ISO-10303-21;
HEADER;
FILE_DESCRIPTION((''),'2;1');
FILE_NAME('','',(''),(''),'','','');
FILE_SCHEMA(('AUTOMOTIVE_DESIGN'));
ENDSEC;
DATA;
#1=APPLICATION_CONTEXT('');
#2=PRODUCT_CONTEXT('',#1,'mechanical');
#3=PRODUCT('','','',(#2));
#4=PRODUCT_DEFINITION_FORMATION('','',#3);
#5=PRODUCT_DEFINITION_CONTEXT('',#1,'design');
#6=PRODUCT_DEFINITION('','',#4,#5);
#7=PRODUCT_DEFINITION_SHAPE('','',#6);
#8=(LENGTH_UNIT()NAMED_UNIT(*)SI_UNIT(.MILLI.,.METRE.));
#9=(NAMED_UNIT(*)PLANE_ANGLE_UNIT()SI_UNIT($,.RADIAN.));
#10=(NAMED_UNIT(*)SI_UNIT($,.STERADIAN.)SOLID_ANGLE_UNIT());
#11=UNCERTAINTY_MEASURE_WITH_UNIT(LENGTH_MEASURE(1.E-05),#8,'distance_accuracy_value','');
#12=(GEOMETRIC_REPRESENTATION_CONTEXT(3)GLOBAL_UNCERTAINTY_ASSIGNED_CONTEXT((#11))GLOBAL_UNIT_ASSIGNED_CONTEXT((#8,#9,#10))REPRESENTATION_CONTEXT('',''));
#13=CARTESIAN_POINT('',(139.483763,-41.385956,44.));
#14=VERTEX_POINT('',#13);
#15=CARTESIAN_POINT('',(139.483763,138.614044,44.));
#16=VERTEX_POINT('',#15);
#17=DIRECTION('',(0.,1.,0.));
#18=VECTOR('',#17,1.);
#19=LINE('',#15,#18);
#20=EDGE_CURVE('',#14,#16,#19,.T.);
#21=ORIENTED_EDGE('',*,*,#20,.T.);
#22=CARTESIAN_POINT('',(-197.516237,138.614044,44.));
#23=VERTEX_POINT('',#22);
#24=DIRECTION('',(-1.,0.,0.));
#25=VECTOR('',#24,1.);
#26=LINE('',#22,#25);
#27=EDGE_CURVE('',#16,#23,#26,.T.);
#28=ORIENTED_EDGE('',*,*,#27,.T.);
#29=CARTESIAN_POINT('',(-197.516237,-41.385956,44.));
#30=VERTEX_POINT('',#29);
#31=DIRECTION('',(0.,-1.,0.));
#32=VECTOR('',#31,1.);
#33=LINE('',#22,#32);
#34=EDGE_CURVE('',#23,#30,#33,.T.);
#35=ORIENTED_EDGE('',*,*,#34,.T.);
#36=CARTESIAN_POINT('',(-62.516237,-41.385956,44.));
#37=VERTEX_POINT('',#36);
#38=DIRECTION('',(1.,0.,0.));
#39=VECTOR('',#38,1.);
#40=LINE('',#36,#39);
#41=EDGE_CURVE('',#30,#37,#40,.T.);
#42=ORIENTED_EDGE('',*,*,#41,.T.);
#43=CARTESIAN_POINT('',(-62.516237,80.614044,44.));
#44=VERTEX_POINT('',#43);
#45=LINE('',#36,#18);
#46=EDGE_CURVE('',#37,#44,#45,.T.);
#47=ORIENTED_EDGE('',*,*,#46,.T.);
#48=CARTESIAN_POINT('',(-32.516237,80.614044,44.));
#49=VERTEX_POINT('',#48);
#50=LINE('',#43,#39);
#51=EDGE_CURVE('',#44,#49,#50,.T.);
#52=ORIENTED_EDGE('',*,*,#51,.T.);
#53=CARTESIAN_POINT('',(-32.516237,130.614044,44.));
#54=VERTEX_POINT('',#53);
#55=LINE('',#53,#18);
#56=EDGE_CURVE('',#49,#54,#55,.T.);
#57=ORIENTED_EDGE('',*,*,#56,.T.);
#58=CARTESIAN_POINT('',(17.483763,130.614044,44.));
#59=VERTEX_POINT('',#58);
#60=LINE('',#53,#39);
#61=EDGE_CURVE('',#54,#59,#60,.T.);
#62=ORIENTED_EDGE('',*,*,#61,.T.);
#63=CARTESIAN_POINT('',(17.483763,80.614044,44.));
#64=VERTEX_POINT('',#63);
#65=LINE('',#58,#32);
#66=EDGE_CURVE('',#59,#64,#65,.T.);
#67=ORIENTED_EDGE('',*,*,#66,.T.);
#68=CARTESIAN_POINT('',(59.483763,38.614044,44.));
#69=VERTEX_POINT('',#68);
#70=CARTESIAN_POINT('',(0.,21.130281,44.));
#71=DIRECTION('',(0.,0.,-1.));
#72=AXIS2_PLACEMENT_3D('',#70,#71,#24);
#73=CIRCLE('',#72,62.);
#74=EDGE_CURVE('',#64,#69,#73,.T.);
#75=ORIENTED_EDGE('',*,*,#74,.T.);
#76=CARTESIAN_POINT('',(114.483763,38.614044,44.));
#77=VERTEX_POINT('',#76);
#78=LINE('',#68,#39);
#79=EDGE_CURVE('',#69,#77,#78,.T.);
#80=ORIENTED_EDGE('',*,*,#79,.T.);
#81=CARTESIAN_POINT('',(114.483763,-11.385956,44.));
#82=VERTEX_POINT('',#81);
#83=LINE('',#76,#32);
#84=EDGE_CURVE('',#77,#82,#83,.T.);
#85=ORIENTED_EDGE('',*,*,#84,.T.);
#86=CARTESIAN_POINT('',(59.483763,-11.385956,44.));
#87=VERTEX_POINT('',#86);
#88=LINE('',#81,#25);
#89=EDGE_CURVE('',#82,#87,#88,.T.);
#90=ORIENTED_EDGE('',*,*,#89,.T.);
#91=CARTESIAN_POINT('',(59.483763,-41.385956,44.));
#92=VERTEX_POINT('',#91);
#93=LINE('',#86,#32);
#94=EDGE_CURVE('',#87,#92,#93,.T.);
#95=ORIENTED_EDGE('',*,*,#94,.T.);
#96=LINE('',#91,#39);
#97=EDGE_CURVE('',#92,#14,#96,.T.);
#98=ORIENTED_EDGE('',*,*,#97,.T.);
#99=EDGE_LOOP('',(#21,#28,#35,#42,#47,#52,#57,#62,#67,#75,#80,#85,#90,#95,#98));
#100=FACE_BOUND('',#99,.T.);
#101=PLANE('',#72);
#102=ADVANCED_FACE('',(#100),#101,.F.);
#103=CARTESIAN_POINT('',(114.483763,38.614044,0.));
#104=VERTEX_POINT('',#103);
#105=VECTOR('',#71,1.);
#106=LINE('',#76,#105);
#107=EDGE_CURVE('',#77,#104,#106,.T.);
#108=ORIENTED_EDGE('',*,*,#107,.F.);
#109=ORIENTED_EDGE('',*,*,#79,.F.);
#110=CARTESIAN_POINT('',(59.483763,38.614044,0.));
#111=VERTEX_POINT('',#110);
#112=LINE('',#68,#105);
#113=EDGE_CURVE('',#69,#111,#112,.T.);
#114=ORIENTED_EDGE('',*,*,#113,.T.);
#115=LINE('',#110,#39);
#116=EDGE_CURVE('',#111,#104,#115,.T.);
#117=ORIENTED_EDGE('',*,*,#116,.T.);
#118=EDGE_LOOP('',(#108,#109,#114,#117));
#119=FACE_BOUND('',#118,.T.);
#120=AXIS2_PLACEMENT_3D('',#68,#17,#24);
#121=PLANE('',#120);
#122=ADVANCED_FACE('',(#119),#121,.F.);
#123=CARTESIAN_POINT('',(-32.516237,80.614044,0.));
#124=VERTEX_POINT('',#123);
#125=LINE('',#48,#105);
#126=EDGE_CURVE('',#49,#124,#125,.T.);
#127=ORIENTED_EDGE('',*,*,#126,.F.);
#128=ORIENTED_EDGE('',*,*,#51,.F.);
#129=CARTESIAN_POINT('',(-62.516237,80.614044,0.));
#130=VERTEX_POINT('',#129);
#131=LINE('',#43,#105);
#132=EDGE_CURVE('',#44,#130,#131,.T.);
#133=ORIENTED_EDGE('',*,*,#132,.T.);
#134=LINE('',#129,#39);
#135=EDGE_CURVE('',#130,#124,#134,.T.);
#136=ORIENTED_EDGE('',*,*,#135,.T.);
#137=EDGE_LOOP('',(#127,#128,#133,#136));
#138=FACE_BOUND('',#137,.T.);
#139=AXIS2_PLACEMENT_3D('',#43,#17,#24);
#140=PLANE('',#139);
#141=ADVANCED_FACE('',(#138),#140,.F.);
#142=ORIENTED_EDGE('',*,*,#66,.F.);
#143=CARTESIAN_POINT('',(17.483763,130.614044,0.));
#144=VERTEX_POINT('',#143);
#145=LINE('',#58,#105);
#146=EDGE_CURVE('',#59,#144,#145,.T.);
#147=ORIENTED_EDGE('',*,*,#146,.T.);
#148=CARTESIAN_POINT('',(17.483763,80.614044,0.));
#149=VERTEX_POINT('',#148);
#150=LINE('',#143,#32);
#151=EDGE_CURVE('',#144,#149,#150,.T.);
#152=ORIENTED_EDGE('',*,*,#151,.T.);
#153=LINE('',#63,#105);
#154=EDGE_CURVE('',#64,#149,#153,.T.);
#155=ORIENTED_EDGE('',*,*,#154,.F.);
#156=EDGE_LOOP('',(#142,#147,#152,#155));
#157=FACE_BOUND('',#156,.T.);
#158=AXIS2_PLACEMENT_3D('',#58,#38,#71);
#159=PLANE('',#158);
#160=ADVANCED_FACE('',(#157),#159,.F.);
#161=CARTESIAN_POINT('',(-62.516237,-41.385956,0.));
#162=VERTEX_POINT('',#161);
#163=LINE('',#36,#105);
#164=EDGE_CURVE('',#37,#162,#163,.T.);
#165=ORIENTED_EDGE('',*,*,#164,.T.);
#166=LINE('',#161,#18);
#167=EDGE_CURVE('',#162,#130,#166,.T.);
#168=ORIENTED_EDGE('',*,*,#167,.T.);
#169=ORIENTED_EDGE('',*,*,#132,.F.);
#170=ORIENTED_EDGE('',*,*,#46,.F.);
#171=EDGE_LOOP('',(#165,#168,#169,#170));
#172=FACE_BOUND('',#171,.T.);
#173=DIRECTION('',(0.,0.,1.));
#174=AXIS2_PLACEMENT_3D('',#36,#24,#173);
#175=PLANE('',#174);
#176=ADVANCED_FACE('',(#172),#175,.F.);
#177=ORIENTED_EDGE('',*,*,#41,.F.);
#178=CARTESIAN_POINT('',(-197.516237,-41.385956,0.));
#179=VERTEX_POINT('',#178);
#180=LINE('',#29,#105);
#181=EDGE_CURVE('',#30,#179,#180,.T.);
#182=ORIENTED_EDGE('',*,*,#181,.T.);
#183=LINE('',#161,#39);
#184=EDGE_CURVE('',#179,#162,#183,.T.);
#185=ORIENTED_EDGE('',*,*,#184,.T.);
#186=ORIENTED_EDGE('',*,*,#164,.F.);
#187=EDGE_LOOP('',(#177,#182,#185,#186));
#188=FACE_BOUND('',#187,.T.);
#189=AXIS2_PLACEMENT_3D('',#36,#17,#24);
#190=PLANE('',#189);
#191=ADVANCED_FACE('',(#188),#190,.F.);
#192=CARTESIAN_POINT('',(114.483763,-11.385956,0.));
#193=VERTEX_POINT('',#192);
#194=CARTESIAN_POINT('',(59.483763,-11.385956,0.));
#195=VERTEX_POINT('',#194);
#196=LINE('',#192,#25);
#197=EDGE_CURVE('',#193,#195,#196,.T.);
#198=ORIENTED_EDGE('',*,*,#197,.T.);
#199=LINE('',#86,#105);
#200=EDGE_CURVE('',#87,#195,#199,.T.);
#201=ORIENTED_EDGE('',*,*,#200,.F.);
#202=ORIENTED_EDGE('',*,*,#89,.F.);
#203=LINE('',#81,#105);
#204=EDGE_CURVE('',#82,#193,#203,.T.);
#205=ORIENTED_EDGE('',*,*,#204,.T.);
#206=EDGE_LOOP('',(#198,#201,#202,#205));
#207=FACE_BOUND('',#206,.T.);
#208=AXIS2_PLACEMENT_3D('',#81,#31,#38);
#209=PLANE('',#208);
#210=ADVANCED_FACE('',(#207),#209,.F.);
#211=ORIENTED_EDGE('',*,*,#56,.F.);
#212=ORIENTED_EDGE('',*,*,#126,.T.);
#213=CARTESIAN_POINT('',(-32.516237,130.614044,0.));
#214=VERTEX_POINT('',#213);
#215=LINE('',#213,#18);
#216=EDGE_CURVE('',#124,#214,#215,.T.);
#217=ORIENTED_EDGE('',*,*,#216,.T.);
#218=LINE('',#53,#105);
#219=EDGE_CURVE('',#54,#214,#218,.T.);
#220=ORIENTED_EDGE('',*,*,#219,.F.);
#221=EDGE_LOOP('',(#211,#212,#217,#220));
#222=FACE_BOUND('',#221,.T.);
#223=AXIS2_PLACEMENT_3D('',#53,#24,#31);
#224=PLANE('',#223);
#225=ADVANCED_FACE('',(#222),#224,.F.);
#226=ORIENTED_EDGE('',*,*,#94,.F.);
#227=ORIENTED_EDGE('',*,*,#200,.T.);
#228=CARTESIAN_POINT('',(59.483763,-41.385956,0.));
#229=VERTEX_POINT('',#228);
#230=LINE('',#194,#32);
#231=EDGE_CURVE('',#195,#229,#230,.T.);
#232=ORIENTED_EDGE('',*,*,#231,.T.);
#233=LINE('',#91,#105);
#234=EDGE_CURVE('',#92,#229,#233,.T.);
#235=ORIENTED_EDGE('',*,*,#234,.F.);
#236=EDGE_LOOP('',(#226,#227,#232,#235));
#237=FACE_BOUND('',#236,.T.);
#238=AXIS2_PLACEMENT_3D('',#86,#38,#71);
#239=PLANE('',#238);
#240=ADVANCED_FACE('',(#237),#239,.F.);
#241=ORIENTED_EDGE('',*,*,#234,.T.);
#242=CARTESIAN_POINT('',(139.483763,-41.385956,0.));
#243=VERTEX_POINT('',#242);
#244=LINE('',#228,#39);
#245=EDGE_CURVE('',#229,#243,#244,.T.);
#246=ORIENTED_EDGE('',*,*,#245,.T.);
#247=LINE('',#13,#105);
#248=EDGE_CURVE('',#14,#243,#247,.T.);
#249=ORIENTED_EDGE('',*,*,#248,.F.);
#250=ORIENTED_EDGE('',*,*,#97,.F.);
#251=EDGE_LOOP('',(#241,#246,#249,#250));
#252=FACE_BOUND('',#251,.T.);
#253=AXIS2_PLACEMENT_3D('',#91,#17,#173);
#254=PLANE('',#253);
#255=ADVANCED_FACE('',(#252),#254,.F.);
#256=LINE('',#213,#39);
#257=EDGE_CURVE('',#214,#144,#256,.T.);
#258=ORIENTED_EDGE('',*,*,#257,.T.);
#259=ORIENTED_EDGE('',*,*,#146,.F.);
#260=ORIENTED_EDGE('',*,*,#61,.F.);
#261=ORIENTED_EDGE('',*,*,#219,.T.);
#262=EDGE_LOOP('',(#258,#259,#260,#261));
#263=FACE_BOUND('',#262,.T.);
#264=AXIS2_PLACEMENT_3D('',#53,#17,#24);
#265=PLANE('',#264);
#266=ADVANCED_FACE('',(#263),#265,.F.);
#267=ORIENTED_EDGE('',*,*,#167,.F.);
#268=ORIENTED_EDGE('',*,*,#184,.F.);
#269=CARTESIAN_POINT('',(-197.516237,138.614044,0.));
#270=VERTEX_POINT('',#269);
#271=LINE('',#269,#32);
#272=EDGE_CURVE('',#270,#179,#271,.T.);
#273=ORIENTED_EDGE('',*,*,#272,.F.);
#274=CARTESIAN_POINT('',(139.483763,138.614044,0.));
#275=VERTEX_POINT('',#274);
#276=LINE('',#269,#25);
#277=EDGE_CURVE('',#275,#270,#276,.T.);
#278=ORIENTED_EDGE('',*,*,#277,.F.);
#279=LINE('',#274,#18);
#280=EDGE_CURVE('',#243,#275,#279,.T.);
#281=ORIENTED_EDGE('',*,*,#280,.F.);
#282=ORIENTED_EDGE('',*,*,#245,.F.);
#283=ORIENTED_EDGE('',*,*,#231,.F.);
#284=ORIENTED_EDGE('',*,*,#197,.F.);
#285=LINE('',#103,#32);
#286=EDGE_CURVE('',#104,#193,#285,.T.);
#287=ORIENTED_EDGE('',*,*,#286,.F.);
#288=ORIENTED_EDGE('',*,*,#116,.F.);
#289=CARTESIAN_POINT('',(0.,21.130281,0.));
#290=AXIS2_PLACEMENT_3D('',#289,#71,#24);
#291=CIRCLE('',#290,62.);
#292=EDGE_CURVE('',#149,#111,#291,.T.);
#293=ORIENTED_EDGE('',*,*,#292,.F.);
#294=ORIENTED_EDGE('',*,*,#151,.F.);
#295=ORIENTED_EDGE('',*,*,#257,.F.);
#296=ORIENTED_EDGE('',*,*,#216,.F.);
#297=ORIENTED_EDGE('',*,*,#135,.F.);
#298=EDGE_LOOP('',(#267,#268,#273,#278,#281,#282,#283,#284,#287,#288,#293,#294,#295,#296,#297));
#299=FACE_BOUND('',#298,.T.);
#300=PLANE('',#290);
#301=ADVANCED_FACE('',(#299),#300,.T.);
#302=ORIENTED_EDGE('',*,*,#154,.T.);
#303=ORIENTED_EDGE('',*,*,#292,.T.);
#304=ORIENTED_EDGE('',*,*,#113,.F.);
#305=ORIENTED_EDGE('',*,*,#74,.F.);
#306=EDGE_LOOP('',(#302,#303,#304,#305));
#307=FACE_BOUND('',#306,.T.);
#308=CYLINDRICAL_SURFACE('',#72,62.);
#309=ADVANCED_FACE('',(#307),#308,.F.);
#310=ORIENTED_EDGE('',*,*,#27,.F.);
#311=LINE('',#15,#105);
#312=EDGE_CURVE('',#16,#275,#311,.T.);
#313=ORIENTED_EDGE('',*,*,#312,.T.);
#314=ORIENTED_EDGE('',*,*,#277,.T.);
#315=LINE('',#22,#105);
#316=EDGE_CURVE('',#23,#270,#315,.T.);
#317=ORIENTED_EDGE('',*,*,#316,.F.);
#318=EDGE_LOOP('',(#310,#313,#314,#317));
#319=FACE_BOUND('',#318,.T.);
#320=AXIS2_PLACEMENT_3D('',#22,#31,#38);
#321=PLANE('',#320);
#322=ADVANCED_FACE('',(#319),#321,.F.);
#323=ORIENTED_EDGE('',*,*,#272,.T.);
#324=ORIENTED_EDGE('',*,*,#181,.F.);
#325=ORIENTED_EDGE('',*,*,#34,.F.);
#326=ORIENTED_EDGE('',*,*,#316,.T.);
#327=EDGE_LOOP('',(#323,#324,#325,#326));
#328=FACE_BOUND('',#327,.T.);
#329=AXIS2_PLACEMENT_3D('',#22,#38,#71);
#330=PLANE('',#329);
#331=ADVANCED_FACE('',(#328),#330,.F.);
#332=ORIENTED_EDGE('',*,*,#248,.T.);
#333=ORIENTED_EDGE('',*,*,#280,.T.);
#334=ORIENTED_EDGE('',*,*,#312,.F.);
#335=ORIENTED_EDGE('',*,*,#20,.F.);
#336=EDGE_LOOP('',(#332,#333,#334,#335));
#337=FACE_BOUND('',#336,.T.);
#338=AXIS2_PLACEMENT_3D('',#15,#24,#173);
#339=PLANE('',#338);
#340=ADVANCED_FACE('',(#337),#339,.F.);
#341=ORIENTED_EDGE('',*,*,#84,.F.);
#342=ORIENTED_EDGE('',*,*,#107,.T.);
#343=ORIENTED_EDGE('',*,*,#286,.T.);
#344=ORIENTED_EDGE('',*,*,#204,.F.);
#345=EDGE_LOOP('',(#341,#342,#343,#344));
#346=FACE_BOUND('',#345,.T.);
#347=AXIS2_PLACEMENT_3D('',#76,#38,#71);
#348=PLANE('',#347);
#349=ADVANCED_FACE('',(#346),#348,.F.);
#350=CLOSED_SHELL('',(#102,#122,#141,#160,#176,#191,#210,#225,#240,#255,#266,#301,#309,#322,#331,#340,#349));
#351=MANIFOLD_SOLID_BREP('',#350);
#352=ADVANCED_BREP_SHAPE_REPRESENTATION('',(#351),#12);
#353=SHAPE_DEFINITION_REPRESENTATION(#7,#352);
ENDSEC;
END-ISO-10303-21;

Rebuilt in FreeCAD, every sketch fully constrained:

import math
import FreeCAD as App
import Part
import Sketcher

doc = App.newDocument("Part")
body = doc.addObject("PartDesign::Body", "Body")

# Sketch on XY plane
sketch1 = body.newObject("Sketcher::SketchObject", "Sketch")
sketch1.AttachmentSupport = (doc.getObject("XY_Plane"), [""])
sketch1.MapMode = "FlatFace"
sketch1.addGeometry([
    Part.LineSegment(App.Vector(-63, 81, 0), App.Vector(-33, 81, 0)),  # 0
    Part.LineSegment(App.Vector(-33, 81, 0), App.Vector(-33, 131, 0)),  # 1
    Part.LineSegment(App.Vector(-33, 131, 0), App.Vector(17, 131, 0)),  # 2
    Part.LineSegment(App.Vector(17, 131, 0), App.Vector(17, 81, 0)),  # 3
    Part.ArcOfCircle(Part.Circle(App.Vector(0, 21, 0), App.Vector(0, 0, 1), 62), math.radians(16), math.radians(74)),  # 4
    Part.LineSegment(App.Vector(59, 39, 0), App.Vector(114, 39, 0)),  # 5
    Part.LineSegment(App.Vector(114, 39, 0), App.Vector(114, -11, 0)),  # 6
    Part.LineSegment(App.Vector(114, -11, 0), App.Vector(59, -11, 0)),  # 7
    Part.LineSegment(App.Vector(59, -11, 0), App.Vector(59, -41, 0)),  # 8
    Part.LineSegment(App.Vector(59, -41, 0), App.Vector(139, -41, 0)),  # 9
    Part.LineSegment(App.Vector(139, -41, 0), App.Vector(139, 139, 0)),  # 10
    Part.LineSegment(App.Vector(139, 139, 0), App.Vector(-198, 139, 0)),  # 11
    Part.LineSegment(App.Vector(-198, 139, 0), App.Vector(-198, -41, 0)),  # 12
    Part.LineSegment(App.Vector(-198, -41, 0), App.Vector(-63, -41, 0)),  # 13
    Part.LineSegment(App.Vector(-63, -41, 0), App.Vector(-63, 81, 0)),  # 14
], False)
sketch1.addConstraint([
    Sketcher.Constraint("Coincident", 0, 2, 1, 1),
    Sketcher.Constraint("Coincident", 1, 2, 2, 1),
    Sketcher.Constraint("Coincident", 2, 2, 3, 1),
    Sketcher.Constraint("Coincident", 3, 2, 4, 2),
    Sketcher.Constraint("Coincident", 4, 1, 5, 1),
    Sketcher.Constraint("Coincident", 5, 2, 6, 1),
    Sketcher.Constraint("Coincident", 6, 2, 7, 1),
    Sketcher.Constraint("Coincident", 7, 2, 8, 1),
    Sketcher.Constraint("Coincident", 8, 2, 9, 1),
    Sketcher.Constraint("Coincident", 9, 2, 10, 1),
    Sketcher.Constraint("Coincident", 10, 2, 11, 1),
    Sketcher.Constraint("Coincident", 11, 2, 12, 1),
    Sketcher.Constraint("Coincident", 12, 2, 13, 1),
    Sketcher.Constraint("Coincident", 13, 2, 14, 1),
    Sketcher.Constraint("Coincident", 14, 2, 0, 1),
    Sketcher.Constraint("Horizontal", 0),
    Sketcher.Constraint("Vertical", 1),
    Sketcher.Constraint("Horizontal", 2),
    Sketcher.Constraint("Vertical", 3),
    Sketcher.Constraint("Horizontal", 5),
    Sketcher.Constraint("Vertical", 6),
    Sketcher.Constraint("Horizontal", 7),
    Sketcher.Constraint("Vertical", 8),
    Sketcher.Constraint("Horizontal", 9),
    Sketcher.Constraint("Vertical", 10),
    Sketcher.Constraint("Horizontal", 11),
    Sketcher.Constraint("Vertical", 12),
    Sketcher.Constraint("Horizontal", 13),
    Sketcher.Constraint("Vertical", 14),
    Sketcher.Constraint("PointOnObject", 4, 3, -2),
    Sketcher.Constraint("Horizontal", 0, 2, 3, 2),
    Sketcher.Constraint("Horizontal", 9, 2, 12, 2),
    Sketcher.Constraint("Vertical", 4, 1, 7, 2),
    Sketcher.Constraint("Equal", 2, 1),
    Sketcher.Constraint("Equal", 3, 6),
    Sketcher.Constraint("Equal", 0, 8),
    Sketcher.Constraint("Radius", 4, 62.0),
    Sketcher.Constraint("DistanceX", 0, 1, 0, 2, 30.0),
    Sketcher.Constraint("DistanceX", 2, 1, 2, 2, 50.0),
    Sketcher.Constraint("DistanceX", 5, 1, 5, 2, 55.0),
    Sketcher.Constraint("DistanceX", 9, 1, 9, 2, 80.0),
    Sketcher.Constraint("DistanceX", 11, 2, 11, 1, 337.0),
    Sketcher.Constraint("DistanceX", 13, 1, 13, 2, 135.0),
    Sketcher.Constraint("DistanceY", 10, 1, 10, 2, 180.0),
    Sketcher.Constraint("DistanceY", 14, 1, 14, 2, 122.0),
    Sketcher.Constraint("DistanceY", -1, 1, 4, 3, 21.130281),
])
pad1 = body.newObject("PartDesign::Pad", "Pad")
pad1.Profile = sketch1
pad1.Length = 44

doc.recompute()
